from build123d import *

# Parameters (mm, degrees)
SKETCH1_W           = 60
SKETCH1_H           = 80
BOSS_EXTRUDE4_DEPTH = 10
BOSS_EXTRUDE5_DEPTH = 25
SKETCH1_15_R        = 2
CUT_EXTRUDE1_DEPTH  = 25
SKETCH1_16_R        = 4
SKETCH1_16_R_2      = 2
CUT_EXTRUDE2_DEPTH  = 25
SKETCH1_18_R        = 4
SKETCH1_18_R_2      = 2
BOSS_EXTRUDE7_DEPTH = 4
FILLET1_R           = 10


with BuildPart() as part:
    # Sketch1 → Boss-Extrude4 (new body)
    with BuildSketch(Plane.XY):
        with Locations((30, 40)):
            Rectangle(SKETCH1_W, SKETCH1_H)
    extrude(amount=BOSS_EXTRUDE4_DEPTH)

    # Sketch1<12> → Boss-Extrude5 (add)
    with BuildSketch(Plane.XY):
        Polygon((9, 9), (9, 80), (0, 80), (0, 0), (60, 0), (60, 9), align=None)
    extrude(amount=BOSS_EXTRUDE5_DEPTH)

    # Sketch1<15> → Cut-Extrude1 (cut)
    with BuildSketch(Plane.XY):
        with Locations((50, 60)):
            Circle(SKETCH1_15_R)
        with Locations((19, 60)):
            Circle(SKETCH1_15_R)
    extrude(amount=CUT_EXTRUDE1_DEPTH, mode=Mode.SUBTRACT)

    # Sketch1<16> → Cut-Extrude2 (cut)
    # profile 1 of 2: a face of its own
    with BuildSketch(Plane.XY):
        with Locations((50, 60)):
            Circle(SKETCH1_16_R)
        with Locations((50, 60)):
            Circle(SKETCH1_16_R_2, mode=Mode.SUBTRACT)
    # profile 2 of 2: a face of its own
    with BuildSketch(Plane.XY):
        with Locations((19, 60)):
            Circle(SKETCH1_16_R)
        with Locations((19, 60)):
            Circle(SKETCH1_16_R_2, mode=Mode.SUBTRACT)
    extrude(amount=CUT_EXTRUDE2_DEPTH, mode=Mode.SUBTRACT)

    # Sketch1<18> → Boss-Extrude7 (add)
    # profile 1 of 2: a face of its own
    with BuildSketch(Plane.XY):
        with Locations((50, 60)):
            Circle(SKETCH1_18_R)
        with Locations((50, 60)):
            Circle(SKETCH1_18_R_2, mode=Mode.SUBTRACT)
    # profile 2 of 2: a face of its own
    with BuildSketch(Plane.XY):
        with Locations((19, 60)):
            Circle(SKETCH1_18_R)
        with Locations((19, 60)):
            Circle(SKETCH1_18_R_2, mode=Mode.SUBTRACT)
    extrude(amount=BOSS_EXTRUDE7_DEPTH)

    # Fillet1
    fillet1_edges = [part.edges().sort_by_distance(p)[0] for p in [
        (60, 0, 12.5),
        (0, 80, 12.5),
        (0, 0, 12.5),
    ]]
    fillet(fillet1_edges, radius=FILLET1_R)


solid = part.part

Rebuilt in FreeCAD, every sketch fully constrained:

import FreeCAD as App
import Part
import Sketcher


def edges_at(feature, points):
    """Names of the edges that pass closest to the given points."""
    edges = feature.Shape.Edges
    near = lambda p: min(range(len(edges)), key=lambda i: edges[i].distToShape(Part.Vertex(*p))[0])
    return sorted({f"Edge{near(p) + 1}" for p in points})


def add_polygon(sketch, points):
    """Adds a closed chain of lines whose ends are joined by coincident constraints."""
    first, n = sketch.GeometryCount, len(points)
    for a, b in zip(points, points[1:] + points[:1]):
        sketch.addGeometry(Part.LineSegment(App.Vector(*a, 0), App.Vector(*b, 0)), False)
    for i in range(n):
        sketch.addConstraint(Sketcher.Constraint("Coincident", first + i, 2, first + (i + 1) % n, 1))

doc = App.newDocument("Part")
body = doc.addObject("PartDesign::Body", "Body")

sketch1 = body.newObject("Sketcher::SketchObject", "Sketch")
sketch1.AttachmentSupport = (doc.getObject("XY_Plane"), [""])
sketch1.MapMode = "FlatFace"
add_polygon(sketch1, [(0, 80), (0, 0), (60, 0), (60, 80)])
sketch1.addConstraint([
    Sketcher.Constraint("Vertical", 0),
    Sketcher.Constraint("Horizontal", 1),
    Sketcher.Constraint("Vertical", 2),
    Sketcher.Constraint("Horizontal", 3),
    Sketcher.Constraint("Coincident", 0, 2, -1, 1),
    Sketcher.Constraint("DistanceX", 1, 1, 1, 2, 60.0),
    Sketcher.Constraint("DistanceY", 0, 2, 0, 1, 80.0),
])
pad1 = body.newObject("PartDesign::Pad", "Pad")
pad1.Profile = sketch1
pad1.Length = 10

sketch2 = body.newObject("Sketcher::SketchObject", "Sketch001")
sketch2.AttachmentSupport = (doc.getObject("XY_Plane"), [""])
sketch2.MapMode = "FlatFace"
add_polygon(sketch2, [(9, 9), (9, 80), (0, 80), (0, 0), (60, 0), (60, 9)])
sketch2.addConstraint([
    Sketcher.Constraint("Vertical", 0),
    Sketcher.Constraint("Horizontal", 1),
    Sketcher.Constraint("Vertical", 2),
    Sketcher.Constraint("Horizontal", 3),
    Sketcher.Constraint("Vertical", 4),
    Sketcher.Constraint("Horizontal", 5),
    Sketcher.Constraint("Coincident", 2, 2, -1, 1),
    Sketcher.Constraint("Equal", 1, 4),
    Sketcher.Constraint("DistanceX", 1, 2, 1, 1, 9.0),
    Sketcher.Constraint("DistanceX", 3, 1, 3, 2, 60.0),
    Sketcher.Constraint("DistanceY", 0, 1, 0, 2, 71.0),
])
pad2 = body.newObject("PartDesign::Pad", "Pad001")
pad2.Profile = sketch2
pad2.Length = 25

sketch3 = body.newObject("Sketcher::SketchObject", "Sketch002")
sketch3.AttachmentSupport = (doc.getObject("XY_Plane"), [""])
sketch3.MapMode = "FlatFace"
sketch3.addGeometry([
    Part.Circle(App.Vector(50, 60, 0), App.Vector(0, 0, 1), 2),
    Part.Circle(App.Vector(19, 60, 0), App.Vector(0, 0, 1), 2),
], False)
sketch3.addConstraint([
    Sketcher.Constraint("Equal", 0, 1),
    Sketcher.Constraint("Horizontal", 0, 3, 1, 3),
    Sketcher.Constraint("Diameter", 0, 4.0),
    Sketcher.Constraint("DistanceX", -1, 1, 0, 3, 50.0),
    Sketcher.Constraint("DistanceY", -1, 1, 0, 3, 60.0),
    Sketcher.Constraint("DistanceX", -1, 1, 1, 3, 19.0),
])
pocket1 = body.newObject("PartDesign::Pocket", "Pocket")
pocket1.Profile = sketch3
pocket1.Length = 25
pocket1.Reversed = True

sketch4 = body.newObject("Sketcher::SketchObject", "Sketch003")
sketch4.AttachmentSupport = (doc.getObject("XY_Plane"), [""])
sketch4.MapMode = "FlatFace"
sketch4.addGeometry([
    Part.Circle(App.Vector(50, 60, 0), App.Vector(0, 0, 1), 4),
    Part.Circle(App.Vector(50, 60, 0), App.Vector(0, 0, 1), 2),
    Part.Circle(App.Vector(19, 60, 0), App.Vector(0, 0, 1), 4),
    Part.Circle(App.Vector(19, 60, 0), App.Vector(0, 0, 1), 2),
], False)
sketch4.addConstraint([
    Sketcher.Constraint("Coincident", 1, 3, 0, 3),
    Sketcher.Constraint("Coincident", 3, 3, 2, 3),
    Sketcher.Constraint("Equal", 0, 2),
    Sketcher.Constraint("Equal", 1, 3),
    Sketcher.Constraint("Horizontal", 1, 3, 2, 3),
    Sketcher.Constraint("Diameter", 0, 8.0),
    Sketcher.Constraint("Diameter", 1, 4.0),
    Sketcher.Constraint("DistanceX", -1, 1, 0, 3, 50.0),
    Sketcher.Constraint("DistanceY", -1, 1, 0, 3, 60.0),
    Sketcher.Constraint("DistanceX", -1, 1, 2, 3, 19.0),
])
pocket2 = body.newObject("PartDesign::Pocket", "Pocket001")
pocket2.Profile = sketch4
pocket2.Length = 25
pocket2.Reversed = True

sketch5 = body.newObject("Sketcher::SketchObject", "Sketch004")
sketch5.AttachmentSupport = (doc.getObject("XY_Plane"), [""])
sketch5.MapMode = "FlatFace"
sketch5.addGeometry([
    Part.Circle(App.Vector(50, 60, 0), App.Vector(0, 0, 1), 4),
    Part.Circle(App.Vector(50, 60, 0), App.Vector(0, 0, 1), 2),
    Part.Circle(App.Vector(19, 60, 0), App.Vector(0, 0, 1), 4),
    Part.Circle(App.Vector(19, 60, 0), App.Vector(0, 0, 1), 2),
], False)
sketch5.addConstraint([
    Sketcher.Constraint("Coincident", 1, 3, 0, 3),
    Sketcher.Constraint("Coincident", 3, 3, 2, 3),
    Sketcher.Constraint("Equal", 0, 2),
    Sketcher.Constraint("Equal", 1, 3),
    Sketcher.Constraint("Horizontal", 1, 3, 2, 3),
    Sketcher.Constraint("Diameter", 0, 8.0),
    Sketcher.Constraint("Diameter", 1, 4.0),
    Sketcher.Constraint("DistanceX", -1, 1, 0, 3, 50.0),
    Sketcher.Constraint("DistanceY", -1, 1, 0, 3, 60.0),
    Sketcher.Constraint("DistanceX", -1, 1, 2, 3, 19.0),
])
pad3 = body.newObject("PartDesign::Pad", "Pad002")
pad3.Profile = sketch5
pad3.Length = 4
doc.recompute()

fillet = body.newObject("PartDesign::Fillet", "Fillet")
fillet.Base = (pad3, edges_at(pad3, [(60, 0, 12.5), (0, 80, 12.5), (0, 0, 12.5)]))
fillet.Radius = 10

doc.recompute()
